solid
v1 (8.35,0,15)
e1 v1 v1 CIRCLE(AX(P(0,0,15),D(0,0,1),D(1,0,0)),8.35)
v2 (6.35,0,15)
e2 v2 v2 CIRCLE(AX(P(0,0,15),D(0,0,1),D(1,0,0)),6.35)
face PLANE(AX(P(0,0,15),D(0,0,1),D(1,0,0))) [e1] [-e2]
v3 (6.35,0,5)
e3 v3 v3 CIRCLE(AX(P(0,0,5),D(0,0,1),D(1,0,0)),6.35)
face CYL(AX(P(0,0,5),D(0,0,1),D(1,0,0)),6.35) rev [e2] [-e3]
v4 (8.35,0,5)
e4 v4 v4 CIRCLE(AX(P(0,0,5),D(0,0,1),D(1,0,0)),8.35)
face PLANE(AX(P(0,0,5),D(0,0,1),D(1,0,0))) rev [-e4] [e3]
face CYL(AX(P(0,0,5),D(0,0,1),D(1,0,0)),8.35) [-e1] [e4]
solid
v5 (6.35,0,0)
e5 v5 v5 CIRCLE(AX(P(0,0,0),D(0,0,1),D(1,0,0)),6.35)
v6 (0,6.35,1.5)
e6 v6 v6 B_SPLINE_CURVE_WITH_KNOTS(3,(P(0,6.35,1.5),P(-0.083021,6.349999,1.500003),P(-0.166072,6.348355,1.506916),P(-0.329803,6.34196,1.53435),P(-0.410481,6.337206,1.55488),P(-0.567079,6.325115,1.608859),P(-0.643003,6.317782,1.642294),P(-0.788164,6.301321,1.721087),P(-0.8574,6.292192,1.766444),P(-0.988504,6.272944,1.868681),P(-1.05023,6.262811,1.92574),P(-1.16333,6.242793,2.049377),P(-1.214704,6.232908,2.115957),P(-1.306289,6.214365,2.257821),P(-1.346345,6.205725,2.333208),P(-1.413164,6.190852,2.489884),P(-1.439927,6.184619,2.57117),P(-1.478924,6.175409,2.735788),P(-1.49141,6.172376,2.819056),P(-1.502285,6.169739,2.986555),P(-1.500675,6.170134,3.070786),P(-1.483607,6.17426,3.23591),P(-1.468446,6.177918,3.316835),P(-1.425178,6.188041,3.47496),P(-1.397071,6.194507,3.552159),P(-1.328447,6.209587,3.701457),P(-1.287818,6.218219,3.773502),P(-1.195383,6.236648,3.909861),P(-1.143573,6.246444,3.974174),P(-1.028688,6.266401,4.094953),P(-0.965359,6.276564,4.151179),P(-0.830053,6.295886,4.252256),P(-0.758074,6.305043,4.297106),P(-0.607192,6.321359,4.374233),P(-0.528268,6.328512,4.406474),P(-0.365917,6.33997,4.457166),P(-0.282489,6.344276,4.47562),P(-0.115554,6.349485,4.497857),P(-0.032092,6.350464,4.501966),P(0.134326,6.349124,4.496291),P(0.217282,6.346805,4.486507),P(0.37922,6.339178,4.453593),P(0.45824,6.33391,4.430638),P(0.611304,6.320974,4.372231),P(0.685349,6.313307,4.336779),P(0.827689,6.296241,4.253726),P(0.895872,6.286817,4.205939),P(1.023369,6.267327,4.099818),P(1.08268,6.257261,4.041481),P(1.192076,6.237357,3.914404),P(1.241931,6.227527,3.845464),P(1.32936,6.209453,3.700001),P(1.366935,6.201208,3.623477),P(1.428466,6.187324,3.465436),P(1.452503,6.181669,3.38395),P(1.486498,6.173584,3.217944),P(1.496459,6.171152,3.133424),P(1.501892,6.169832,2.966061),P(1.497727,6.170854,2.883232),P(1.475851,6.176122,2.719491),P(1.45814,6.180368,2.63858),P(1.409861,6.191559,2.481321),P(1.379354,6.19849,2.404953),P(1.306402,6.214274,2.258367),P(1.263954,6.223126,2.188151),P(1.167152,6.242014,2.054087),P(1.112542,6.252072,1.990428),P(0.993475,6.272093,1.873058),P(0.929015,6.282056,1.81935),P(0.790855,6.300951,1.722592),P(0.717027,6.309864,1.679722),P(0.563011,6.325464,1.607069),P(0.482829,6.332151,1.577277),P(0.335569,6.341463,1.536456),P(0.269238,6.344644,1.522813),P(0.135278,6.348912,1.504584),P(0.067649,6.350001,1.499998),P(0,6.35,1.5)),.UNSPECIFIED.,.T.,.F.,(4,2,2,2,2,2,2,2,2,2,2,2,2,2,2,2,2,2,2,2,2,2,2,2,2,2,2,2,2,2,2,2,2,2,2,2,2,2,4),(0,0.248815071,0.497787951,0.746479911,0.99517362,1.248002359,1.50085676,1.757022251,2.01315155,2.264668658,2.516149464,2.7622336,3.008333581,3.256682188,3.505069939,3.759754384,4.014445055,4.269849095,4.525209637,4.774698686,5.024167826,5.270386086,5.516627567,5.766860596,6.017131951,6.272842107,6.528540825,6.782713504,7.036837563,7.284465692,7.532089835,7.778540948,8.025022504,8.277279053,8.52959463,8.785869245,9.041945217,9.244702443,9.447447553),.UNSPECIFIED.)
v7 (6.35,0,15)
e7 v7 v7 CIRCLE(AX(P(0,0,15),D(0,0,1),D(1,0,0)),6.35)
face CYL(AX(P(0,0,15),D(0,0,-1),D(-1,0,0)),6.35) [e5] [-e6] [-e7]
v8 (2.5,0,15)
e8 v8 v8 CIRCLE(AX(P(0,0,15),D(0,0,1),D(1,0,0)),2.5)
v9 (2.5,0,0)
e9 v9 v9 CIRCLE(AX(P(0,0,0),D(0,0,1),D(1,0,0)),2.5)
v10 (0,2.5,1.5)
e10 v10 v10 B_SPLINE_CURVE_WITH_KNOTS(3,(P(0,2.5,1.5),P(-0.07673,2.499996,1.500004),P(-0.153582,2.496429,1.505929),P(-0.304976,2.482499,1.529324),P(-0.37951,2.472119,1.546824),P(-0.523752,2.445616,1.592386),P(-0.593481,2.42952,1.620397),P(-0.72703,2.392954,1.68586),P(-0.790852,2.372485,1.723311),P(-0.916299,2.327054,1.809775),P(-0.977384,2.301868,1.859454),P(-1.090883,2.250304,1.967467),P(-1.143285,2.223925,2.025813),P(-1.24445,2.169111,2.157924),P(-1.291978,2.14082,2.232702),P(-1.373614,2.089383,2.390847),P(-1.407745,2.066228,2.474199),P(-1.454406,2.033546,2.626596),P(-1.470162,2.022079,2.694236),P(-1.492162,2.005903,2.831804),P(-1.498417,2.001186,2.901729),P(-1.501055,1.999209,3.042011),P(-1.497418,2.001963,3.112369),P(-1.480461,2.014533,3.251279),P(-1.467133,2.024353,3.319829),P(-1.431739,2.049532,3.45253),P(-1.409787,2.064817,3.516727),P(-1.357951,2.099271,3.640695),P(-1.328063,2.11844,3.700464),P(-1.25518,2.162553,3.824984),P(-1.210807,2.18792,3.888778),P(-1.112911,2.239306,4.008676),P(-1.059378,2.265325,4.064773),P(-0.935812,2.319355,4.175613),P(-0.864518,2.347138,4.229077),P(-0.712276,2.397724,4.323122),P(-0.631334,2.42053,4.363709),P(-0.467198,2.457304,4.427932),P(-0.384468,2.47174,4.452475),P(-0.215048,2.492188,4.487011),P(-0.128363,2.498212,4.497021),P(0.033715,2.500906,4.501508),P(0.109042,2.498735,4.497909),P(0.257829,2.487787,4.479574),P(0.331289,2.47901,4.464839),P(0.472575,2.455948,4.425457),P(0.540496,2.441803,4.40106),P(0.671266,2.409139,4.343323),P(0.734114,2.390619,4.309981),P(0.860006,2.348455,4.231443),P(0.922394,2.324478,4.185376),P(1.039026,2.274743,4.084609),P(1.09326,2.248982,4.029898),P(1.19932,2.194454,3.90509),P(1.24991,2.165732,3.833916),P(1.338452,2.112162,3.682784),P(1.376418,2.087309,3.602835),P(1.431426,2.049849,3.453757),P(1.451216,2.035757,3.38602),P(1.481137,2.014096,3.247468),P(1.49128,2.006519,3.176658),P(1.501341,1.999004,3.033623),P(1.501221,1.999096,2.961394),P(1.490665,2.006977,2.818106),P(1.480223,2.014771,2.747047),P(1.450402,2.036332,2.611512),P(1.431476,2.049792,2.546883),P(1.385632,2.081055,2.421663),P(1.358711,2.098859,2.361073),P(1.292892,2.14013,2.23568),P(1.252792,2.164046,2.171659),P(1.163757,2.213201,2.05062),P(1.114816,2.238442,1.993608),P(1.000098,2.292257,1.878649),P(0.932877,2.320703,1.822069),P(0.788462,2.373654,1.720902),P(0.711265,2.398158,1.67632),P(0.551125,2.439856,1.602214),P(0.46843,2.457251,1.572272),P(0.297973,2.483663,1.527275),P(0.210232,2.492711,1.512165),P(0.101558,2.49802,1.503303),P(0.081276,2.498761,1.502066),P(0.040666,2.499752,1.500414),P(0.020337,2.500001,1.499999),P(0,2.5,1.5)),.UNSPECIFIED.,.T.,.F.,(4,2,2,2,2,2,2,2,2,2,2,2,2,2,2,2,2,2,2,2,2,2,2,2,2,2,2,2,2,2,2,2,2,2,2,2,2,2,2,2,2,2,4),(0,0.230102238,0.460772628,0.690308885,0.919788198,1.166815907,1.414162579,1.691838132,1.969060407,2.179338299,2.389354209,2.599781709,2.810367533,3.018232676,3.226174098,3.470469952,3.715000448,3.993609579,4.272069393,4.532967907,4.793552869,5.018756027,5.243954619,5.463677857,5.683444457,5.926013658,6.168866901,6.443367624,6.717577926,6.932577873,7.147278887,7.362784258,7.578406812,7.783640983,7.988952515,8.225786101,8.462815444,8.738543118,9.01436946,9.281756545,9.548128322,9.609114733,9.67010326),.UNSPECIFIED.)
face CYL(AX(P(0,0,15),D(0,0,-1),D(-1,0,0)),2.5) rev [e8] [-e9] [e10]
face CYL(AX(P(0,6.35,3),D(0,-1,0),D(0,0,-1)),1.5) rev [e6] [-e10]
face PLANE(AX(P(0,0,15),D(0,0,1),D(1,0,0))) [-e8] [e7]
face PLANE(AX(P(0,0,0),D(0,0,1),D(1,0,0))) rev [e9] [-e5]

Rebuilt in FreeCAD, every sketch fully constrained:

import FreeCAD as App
import Part
import Sketcher
Q = App.Units.Quantity

doc = App.newDocument("Part")
params = doc.addObject("Spreadsheet::Sheet", "Params")
for row, (alias, value) in enumerate([
    ("sketch1_diameter", "5 mm"),
    ("sketch1_diameter2", "12.7 mm"),
    ("pad1_length", "15 mm"),
    ("sketch2_diameter", "3 mm"),
    ("sketch3_diameter", "16.7 mm"),
    ("sketch3_diameter2", "12.7 mm"),
    ("pad2_length", "10 mm"),
], start=1):
    params.set(f"A{row}", alias)
    params.set(f"B{row}", "=" + value)
    params.setAlias(f"B{row}", alias)

body = doc.addObject("PartDesign::Body", "Body")

# Sketch on XY plane
sketch1 = body.newObject("Sketcher::SketchObject", "Sketch")
sketch1.AttachmentSupport = (doc.getObject("XY_Plane"), [""])
sketch1.MapMode = "FlatFace"
sketch1.addGeometry([
    Part.Circle(App.Vector(0, 0, 0), App.Vector(0, 0, 1), 6.35),
    Part.Circle(App.Vector(0, 0, 0), App.Vector(0, 0, 1), 2.5),
], False)
sketch1.addConstraint([
    Sketcher.Constraint("Coincident", 0, 3, -1, 1),
    Sketcher.Constraint("Coincident", 1, 3, -1, 1),
    Sketcher.Constraint("Diameter", 1, Q("5 mm")),
    Sketcher.Constraint("Diameter", 0, Q("12.7 mm")),
])
sketch1.setExpression("Constraints[2]", "Params.sketch1_diameter")
sketch1.setExpression("Constraints[3]", "Params.sketch1_diameter2")
pad1 = body.newObject("PartDesign::Pad", "Pad")
pad1.Profile = sketch1
pad1.setExpression("Length", "Params.pad1_length")

# Sketch on XZ plane
sketch2 = body.newObject("Sketcher::SketchObject", "Sketch001")
sketch2.AttachmentSupport = (doc.getObject("XZ_Plane"), [""])
sketch2.MapMode = "FlatFace"
sketch2.addGeometry(Part.Circle(App.Vector(0, 3, 0), App.Vector(0, 0, 1), 1.5), False)
sketch2.addConstraint([
    Sketcher.Constraint("PointOnObject", 0, 3, -2),
    Sketcher.Constraint("Diameter", 0, Q("3 mm")),
    Sketcher.Constraint("DistanceY", -1, 1, 0, 3, Q("3 mm")),
])
sketch2.setExpression("Constraints[1]", "Params.sketch2_diameter")
pocket1 = body.newObject("PartDesign::Pocket", "Pocket")
pocket1.Profile = sketch2
pocket1.Type = "ThroughAll"
body2 = doc.addObject("PartDesign::Body", "Body001")

# Sketch on XY plane
sketch3 = body2.newObject("Sketcher::SketchObject", "Sketch002")
sketch3.AttachmentSupport = (doc.getObject("XY_Plane001"), [""])
sketch3.MapMode = "FlatFace"
sketch3.AttachmentOffset = App.Placement(App.Vector(0, 0, 15), App.Rotation())
sketch3.addGeometry([
    Part.Circle(App.Vector(0, 0, 0), App.Vector(0, 0, 1), 8.35),
    Part.Circle(App.Vector(0, 0, 0), App.Vector(0, 0, 1), 6.35),
], False)
sketch3.addConstraint([
    Sketcher.Constraint("Coincident", 0, 3, -1, 1),
    Sketcher.Constraint("Coincident", 1, 3, -1, 1),
    Sketcher.Constraint("Diameter", 0, Q("16.7 mm")),
    Sketcher.Constraint("Diameter", 1, Q("12.7 mm")),
])
sketch3.setExpression("Constraints[2]", "Params.sketch3_diameter")
sketch3.setExpression("Constraints[3]", "Params.sketch3_diameter2")
pad2 = body2.newObject("PartDesign::Pad", "Pad001")
pad2.Profile = sketch3
pad2.setExpression("Length", "Params.pad2_length")
pad2.Reversed = True

doc.recompute()
